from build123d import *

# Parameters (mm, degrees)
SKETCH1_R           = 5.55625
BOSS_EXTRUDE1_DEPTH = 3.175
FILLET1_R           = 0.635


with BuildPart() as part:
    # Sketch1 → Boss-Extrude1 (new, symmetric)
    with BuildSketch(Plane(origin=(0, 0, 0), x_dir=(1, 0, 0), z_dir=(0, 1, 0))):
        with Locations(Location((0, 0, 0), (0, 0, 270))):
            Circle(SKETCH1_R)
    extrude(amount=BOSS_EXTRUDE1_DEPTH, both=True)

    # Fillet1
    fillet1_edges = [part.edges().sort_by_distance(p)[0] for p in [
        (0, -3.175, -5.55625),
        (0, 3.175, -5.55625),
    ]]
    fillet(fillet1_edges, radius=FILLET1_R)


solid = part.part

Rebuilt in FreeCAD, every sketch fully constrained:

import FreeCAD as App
import Part
import Sketcher

V = App.Vector
Q = App.Units.Quantity


def edges_at(feature, points):
    """Names of the edges that pass closest to the given points."""
    edges = feature.Shape.Edges
    near = lambda p: min(range(len(edges)), key=lambda i: edges[i].distToShape(Part.Vertex(*p))[0])
    return sorted({f"Edge{near(p) + 1}" for p in points})

doc = App.newDocument("Part")
body = doc.addObject("PartDesign::Body", "Body")

# Sketch on XZ plane
sketch1 = body.newObject("Sketcher::SketchObject", "Sketch")
sketch1.AttachmentSupport = (doc.getObject("XZ_Plane"), [""])
sketch1.MapMode = "FlatFace"
sketch1.addGeometry(Part.Circle(V(0, 0, 0), V(0, 0, 1), 5.55625), False)
sketch1.addConstraint([
    Sketcher.Constraint("Coincident", 0, 3, -1, 1),
    Sketcher.Constraint("Diameter", 0, Q("0.4375 in")),
])
pad1 = body.newObject("PartDesign::Pad", "Pad")
pad1.Profile = sketch1
pad1.Length = Q("0.25 in")
pad1.Midplane = True
doc.recompute()

fillet = body.newObject("PartDesign::Fillet", "Fillet")
fillet.Base = (pad1, edges_at(pad1, [(0, -3.175, -5.556), (0, 3.175, -5.556)]))
fillet.Radius = Q("0.025 in")

doc.recompute()
